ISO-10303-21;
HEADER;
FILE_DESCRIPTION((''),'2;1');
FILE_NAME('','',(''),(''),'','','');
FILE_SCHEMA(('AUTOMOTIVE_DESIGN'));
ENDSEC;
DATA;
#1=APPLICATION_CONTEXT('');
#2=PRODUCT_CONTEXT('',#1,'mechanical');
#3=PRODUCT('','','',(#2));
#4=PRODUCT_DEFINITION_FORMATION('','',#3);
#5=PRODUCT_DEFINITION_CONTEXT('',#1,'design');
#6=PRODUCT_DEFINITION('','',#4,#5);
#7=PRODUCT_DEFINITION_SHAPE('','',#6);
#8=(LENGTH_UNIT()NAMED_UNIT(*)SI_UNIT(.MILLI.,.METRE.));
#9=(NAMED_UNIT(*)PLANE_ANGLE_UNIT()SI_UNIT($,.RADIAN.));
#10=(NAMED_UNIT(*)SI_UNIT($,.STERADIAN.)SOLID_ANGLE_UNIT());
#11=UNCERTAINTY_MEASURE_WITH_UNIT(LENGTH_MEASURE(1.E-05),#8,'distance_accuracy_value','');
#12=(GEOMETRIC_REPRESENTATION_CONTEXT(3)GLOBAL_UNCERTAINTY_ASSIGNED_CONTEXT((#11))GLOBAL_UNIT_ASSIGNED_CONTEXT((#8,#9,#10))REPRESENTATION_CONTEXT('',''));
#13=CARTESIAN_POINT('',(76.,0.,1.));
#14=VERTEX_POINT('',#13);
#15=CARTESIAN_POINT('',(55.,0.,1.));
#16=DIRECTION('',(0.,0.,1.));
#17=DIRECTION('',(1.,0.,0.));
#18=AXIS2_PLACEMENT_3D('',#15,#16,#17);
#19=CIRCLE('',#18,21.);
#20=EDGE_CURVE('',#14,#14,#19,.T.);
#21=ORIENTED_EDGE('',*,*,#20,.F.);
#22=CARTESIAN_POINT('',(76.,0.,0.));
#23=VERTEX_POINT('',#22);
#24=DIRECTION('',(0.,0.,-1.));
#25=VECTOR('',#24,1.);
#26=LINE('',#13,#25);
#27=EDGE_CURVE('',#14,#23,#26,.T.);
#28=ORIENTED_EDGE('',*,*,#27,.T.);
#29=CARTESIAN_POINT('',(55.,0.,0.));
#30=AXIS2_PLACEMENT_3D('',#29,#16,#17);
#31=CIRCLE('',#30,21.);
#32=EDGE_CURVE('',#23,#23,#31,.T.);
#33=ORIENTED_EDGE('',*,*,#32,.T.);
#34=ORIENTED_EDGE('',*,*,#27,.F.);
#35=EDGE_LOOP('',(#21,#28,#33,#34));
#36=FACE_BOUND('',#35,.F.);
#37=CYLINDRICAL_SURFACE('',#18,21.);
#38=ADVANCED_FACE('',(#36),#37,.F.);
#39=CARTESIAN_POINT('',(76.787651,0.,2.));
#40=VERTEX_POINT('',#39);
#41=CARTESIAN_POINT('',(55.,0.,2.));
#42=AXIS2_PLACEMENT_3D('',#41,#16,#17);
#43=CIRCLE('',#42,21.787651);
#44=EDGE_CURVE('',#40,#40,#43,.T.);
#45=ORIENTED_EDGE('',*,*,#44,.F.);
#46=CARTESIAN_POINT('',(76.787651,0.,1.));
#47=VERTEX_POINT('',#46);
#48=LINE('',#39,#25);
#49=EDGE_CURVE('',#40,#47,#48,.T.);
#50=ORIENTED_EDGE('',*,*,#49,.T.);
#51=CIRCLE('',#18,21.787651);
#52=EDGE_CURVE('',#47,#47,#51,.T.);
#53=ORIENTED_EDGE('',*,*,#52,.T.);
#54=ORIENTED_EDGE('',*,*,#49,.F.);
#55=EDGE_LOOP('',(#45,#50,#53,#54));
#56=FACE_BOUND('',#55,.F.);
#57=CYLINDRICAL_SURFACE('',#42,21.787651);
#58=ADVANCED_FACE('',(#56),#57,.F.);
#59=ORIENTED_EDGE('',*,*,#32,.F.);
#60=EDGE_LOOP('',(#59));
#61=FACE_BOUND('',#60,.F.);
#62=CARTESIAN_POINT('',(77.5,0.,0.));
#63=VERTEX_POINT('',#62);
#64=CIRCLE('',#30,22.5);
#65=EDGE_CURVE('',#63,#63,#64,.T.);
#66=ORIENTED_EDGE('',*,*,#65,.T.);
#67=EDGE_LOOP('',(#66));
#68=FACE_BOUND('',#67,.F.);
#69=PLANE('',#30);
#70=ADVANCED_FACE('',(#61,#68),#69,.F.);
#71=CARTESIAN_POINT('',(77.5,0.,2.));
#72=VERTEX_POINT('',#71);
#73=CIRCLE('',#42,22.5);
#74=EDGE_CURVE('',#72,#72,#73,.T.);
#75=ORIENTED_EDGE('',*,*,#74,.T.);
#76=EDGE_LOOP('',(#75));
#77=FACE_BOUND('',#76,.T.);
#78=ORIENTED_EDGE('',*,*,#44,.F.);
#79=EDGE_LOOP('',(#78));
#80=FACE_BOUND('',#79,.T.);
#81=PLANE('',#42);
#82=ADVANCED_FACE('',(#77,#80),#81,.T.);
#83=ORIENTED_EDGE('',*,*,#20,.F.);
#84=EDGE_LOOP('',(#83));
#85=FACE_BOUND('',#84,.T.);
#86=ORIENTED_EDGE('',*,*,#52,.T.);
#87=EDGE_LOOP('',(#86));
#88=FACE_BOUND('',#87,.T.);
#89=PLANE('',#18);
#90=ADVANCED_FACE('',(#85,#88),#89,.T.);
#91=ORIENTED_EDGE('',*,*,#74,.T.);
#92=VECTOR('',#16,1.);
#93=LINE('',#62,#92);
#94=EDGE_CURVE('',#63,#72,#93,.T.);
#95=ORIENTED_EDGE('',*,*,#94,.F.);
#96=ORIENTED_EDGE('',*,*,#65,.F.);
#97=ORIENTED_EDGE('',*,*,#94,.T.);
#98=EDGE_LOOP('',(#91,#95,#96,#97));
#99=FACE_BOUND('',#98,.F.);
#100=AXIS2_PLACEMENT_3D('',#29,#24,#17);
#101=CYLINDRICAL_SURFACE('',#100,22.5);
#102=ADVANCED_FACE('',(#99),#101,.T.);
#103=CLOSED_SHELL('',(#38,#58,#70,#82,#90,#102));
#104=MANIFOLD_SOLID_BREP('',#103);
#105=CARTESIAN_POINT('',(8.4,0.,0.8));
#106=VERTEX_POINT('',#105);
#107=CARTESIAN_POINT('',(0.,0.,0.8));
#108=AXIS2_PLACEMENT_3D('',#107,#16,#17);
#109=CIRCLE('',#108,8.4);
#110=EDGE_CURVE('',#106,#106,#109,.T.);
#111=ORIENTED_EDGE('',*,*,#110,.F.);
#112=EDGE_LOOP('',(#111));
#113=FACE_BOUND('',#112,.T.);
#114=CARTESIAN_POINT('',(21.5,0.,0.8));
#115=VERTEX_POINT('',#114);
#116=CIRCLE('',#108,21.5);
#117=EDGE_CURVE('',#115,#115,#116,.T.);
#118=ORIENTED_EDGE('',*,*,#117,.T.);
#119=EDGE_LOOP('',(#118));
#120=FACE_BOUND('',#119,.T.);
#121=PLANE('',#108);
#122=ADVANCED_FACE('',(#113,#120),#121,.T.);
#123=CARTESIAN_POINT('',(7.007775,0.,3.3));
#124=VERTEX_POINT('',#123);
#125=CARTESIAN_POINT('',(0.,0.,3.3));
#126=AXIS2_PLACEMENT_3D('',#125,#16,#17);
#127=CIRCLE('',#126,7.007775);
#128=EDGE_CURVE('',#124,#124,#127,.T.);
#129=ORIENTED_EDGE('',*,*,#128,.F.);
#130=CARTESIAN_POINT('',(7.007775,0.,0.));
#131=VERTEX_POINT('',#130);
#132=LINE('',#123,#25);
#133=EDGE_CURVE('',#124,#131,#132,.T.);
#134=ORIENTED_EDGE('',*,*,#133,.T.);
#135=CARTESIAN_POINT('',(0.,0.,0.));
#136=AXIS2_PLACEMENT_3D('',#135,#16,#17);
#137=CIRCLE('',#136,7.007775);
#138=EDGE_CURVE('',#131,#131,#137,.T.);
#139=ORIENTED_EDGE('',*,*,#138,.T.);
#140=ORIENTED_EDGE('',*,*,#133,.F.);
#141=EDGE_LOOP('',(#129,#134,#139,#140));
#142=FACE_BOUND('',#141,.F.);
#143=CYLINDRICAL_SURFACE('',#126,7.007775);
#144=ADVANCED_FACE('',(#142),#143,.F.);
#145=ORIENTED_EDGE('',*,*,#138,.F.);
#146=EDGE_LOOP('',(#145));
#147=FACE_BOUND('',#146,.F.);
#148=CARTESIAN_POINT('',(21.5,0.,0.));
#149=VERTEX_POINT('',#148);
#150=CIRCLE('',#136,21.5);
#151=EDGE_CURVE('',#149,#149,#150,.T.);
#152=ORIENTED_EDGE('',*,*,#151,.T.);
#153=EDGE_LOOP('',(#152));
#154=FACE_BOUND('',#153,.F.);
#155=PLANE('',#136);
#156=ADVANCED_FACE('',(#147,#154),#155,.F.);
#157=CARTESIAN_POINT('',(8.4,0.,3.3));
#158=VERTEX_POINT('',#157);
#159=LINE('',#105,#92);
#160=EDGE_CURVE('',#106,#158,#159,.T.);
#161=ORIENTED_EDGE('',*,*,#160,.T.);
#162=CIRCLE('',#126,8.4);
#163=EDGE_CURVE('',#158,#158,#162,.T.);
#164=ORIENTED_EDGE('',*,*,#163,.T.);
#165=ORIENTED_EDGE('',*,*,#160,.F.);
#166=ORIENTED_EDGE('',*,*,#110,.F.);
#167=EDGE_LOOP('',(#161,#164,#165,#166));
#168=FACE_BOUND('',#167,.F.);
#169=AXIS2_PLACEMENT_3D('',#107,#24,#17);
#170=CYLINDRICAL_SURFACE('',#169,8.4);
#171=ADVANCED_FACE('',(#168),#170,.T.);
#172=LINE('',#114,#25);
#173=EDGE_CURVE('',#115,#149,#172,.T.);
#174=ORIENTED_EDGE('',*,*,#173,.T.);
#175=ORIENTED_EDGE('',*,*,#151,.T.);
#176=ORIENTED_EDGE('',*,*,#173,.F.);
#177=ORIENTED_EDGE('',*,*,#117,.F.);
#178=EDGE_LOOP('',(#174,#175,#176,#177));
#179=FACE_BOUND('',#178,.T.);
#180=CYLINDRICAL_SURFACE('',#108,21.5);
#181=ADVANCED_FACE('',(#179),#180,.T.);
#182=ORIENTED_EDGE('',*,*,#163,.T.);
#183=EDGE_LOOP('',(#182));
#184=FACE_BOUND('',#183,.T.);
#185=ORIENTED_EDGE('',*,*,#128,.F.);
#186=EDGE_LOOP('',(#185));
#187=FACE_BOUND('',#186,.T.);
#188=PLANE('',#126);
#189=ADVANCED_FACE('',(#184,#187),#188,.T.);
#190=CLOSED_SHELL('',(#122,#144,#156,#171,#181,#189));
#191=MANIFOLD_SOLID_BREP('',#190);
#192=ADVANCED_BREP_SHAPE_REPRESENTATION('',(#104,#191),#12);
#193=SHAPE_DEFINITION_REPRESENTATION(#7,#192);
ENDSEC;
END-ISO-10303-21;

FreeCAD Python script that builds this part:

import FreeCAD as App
import Part
import Sketcher
Q = App.Units.Quantity

doc = App.newDocument("Part")
body = doc.addObject("PartDesign::Body", "Body")

# Sketch on XY plane
sketch1 = body.newObject("Sketcher::SketchObject", "Sketch")
sketch1.AttachmentSupport = (doc.getObject("XY_Plane"), [""])
sketch1.MapMode = "FlatFace"
sketch1.addGeometry(Part.Circle(App.Vector(0, 0, 0), App.Vector(0, 0, 1), 24), False)
sketch1.addConstraint([
    Sketcher.Constraint("Coincident", 0, 3, -1, 1),
    Sketcher.Constraint("Diameter", 0, Q("48.6 mm")),
])
pad1 = body.newObject("PartDesign::Pad", "Pad")
pad1.Profile = sketch1
pad1.Length = 0.8

# Sketch on XY plane
sketch2 = body.newObject("Sketcher::SketchObject", "Sketch001")
sketch2.AttachmentSupport = (doc.getObject("XY_Plane"), [""])
sketch2.MapMode = "FlatFace"
sketch2.AttachmentOffset = App.Placement(App.Vector(0, 0, 0.8), App.Rotation())
sketch2.addGeometry(Part.Circle(App.Vector(0, 0, 0), App.Vector(0, 0, 1), 8), False)
sketch2.addConstraint([
    Sketcher.Constraint("Coincident", 0, 3, -1, 1),
    Sketcher.Constraint("Diameter", 0, Q("16.8 mm")),
])
pad2 = body.newObject("PartDesign::Pad", "Pad001")
pad2.Profile = sketch2
pad2.Length = 2.5

# Sketch on XY plane
sketch3 = body.newObject("Sketcher::SketchObject", "Sketch002")
sketch3.AttachmentSupport = (doc.getObject("XY_Plane"), [""])
sketch3.MapMode = "FlatFace"
sketch3.AttachmentOffset = App.Placement(App.Vector(0, 0, 3.3), App.Rotation())
sketch3.addGeometry(Part.Circle(App.Vector(0, 0, 0), App.Vector(0, 0, 1), 7), False)
sketch3.addConstraint([
    Sketcher.Constraint("Coincident", 0, 3, -1, 1),
    Sketcher.Constraint("Diameter", 0, Q("14.01555 mm")),
])
pocket1 = body.newObject("PartDesign::Pocket", "Pocket")
pocket1.Profile = sketch3
pocket1.Type = "ThroughAll"

# Sketch on XY plane
sketch4 = body.newObject("Sketcher::SketchObject", "Sketch003")
sketch4.AttachmentSupport = (doc.getObject("XY_Plane"), [""])
sketch4.MapMode = "FlatFace"
sketch4.AttachmentOffset = App.Placement(App.Vector(0, 0, 0.8), App.Rotation())
sketch4.addGeometry([
    Part.Circle(App.Vector(0, 0, 0), App.Vector(0, 0, 1), 31),
    Part.Circle(App.Vector(0, 0, 0), App.Vector(0, 0, 1), 22),
], False)
sketch4.addConstraint([
    Sketcher.Constraint("Coincident", 0, 3, -1, 1),
    Sketcher.Constraint("Coincident", 1, 3, -1, 1),
    Sketcher.Constraint("Diameter", 1, Q("43 mm")),
    Sketcher.Constraint("Diameter", 0, Q("62.306404 mm")),
])
pocket2 = body.newObject("PartDesign::Pocket", "Pocket001")
pocket2.Profile = sketch4
pocket2.Length = 5
body2 = doc.addObject("PartDesign::Body", "Body001")

# Sketch on XY plane
sketch5 = body2.newObject("Sketcher::SketchObject", "Sketch004")
sketch5.AttachmentSupport = (doc.getObject("XY_Plane001"), [""])
sketch5.MapMode = "FlatFace"
sketch5.addGeometry(Part.Circle(App.Vector(55, 0, 0), App.Vector(0, 0, 1), 22), False)
sketch5.addConstraint([
    Sketcher.Constraint("PointOnObject", 0, 3, -1),
    Sketcher.Constraint("Diameter", 0, Q("45 mm")),
    Sketcher.Constraint("DistanceX", -1, 1, 0, 3, Q("55 mm")),
])
pad3 = body2.newObject("PartDesign::Pad", "Pad002")
pad3.Profile = sketch5
pad3.Length = 2

# Sketch on XY plane
sketch6 = body2.newObject("Sketcher::SketchObject", "Sketch005")
sketch6.AttachmentSupport = (doc.getObject("XY_Plane001"), [""])
sketch6.MapMode = "FlatFace"
sketch6.AttachmentOffset = App.Placement(App.Vector(0, 0, 2), App.Rotation())
sketch6.addGeometry(Part.Circle(App.Vector(55, 0, 0), App.Vector(0, 0, 1), 22), False)
sketch6.addConstraint([
    Sketcher.Constraint("PointOnObject", 0, 3, -1),
    Sketcher.Constraint("DistanceX", -1, 1, 0, 3, Q("55 mm")),
    Sketcher.Constraint("Diameter", 0, Q("43.575302 mm")),
])
pocket3 = body2.newObject("PartDesign::Pocket", "Pocket002")
pocket3.Profile = sketch6
pocket3.Length = 1

# Sketch on XY plane
sketch7 = body2.newObject("Sketcher::SketchObject", "Sketch006")
sketch7.AttachmentSupport = (doc.getObject("XY_Plane001"), [""])
sketch7.MapMode = "FlatFace"
sketch7.AttachmentOffset = App.Placement(App.Vector(0, 0, 1), App.Rotation())
sketch7.addGeometry(Part.Circle(App.Vector(55, 0, 0), App.Vector(0, 0, 1), 21), False)
sketch7.addConstraint([
    Sketcher.Constraint("PointOnObject", 0, 3, -1),
    Sketcher.Constraint("Diameter", 0, Q("42 mm")),
    Sketcher.Constraint("DistanceX", -1, 1, 0, 3, Q("55 mm")),
])
pocket4 = body2.newObject("PartDesign::Pocket", "Pocket003")
pocket4.Profile = sketch7
pocket4.Length = 5

doc.recompute()
